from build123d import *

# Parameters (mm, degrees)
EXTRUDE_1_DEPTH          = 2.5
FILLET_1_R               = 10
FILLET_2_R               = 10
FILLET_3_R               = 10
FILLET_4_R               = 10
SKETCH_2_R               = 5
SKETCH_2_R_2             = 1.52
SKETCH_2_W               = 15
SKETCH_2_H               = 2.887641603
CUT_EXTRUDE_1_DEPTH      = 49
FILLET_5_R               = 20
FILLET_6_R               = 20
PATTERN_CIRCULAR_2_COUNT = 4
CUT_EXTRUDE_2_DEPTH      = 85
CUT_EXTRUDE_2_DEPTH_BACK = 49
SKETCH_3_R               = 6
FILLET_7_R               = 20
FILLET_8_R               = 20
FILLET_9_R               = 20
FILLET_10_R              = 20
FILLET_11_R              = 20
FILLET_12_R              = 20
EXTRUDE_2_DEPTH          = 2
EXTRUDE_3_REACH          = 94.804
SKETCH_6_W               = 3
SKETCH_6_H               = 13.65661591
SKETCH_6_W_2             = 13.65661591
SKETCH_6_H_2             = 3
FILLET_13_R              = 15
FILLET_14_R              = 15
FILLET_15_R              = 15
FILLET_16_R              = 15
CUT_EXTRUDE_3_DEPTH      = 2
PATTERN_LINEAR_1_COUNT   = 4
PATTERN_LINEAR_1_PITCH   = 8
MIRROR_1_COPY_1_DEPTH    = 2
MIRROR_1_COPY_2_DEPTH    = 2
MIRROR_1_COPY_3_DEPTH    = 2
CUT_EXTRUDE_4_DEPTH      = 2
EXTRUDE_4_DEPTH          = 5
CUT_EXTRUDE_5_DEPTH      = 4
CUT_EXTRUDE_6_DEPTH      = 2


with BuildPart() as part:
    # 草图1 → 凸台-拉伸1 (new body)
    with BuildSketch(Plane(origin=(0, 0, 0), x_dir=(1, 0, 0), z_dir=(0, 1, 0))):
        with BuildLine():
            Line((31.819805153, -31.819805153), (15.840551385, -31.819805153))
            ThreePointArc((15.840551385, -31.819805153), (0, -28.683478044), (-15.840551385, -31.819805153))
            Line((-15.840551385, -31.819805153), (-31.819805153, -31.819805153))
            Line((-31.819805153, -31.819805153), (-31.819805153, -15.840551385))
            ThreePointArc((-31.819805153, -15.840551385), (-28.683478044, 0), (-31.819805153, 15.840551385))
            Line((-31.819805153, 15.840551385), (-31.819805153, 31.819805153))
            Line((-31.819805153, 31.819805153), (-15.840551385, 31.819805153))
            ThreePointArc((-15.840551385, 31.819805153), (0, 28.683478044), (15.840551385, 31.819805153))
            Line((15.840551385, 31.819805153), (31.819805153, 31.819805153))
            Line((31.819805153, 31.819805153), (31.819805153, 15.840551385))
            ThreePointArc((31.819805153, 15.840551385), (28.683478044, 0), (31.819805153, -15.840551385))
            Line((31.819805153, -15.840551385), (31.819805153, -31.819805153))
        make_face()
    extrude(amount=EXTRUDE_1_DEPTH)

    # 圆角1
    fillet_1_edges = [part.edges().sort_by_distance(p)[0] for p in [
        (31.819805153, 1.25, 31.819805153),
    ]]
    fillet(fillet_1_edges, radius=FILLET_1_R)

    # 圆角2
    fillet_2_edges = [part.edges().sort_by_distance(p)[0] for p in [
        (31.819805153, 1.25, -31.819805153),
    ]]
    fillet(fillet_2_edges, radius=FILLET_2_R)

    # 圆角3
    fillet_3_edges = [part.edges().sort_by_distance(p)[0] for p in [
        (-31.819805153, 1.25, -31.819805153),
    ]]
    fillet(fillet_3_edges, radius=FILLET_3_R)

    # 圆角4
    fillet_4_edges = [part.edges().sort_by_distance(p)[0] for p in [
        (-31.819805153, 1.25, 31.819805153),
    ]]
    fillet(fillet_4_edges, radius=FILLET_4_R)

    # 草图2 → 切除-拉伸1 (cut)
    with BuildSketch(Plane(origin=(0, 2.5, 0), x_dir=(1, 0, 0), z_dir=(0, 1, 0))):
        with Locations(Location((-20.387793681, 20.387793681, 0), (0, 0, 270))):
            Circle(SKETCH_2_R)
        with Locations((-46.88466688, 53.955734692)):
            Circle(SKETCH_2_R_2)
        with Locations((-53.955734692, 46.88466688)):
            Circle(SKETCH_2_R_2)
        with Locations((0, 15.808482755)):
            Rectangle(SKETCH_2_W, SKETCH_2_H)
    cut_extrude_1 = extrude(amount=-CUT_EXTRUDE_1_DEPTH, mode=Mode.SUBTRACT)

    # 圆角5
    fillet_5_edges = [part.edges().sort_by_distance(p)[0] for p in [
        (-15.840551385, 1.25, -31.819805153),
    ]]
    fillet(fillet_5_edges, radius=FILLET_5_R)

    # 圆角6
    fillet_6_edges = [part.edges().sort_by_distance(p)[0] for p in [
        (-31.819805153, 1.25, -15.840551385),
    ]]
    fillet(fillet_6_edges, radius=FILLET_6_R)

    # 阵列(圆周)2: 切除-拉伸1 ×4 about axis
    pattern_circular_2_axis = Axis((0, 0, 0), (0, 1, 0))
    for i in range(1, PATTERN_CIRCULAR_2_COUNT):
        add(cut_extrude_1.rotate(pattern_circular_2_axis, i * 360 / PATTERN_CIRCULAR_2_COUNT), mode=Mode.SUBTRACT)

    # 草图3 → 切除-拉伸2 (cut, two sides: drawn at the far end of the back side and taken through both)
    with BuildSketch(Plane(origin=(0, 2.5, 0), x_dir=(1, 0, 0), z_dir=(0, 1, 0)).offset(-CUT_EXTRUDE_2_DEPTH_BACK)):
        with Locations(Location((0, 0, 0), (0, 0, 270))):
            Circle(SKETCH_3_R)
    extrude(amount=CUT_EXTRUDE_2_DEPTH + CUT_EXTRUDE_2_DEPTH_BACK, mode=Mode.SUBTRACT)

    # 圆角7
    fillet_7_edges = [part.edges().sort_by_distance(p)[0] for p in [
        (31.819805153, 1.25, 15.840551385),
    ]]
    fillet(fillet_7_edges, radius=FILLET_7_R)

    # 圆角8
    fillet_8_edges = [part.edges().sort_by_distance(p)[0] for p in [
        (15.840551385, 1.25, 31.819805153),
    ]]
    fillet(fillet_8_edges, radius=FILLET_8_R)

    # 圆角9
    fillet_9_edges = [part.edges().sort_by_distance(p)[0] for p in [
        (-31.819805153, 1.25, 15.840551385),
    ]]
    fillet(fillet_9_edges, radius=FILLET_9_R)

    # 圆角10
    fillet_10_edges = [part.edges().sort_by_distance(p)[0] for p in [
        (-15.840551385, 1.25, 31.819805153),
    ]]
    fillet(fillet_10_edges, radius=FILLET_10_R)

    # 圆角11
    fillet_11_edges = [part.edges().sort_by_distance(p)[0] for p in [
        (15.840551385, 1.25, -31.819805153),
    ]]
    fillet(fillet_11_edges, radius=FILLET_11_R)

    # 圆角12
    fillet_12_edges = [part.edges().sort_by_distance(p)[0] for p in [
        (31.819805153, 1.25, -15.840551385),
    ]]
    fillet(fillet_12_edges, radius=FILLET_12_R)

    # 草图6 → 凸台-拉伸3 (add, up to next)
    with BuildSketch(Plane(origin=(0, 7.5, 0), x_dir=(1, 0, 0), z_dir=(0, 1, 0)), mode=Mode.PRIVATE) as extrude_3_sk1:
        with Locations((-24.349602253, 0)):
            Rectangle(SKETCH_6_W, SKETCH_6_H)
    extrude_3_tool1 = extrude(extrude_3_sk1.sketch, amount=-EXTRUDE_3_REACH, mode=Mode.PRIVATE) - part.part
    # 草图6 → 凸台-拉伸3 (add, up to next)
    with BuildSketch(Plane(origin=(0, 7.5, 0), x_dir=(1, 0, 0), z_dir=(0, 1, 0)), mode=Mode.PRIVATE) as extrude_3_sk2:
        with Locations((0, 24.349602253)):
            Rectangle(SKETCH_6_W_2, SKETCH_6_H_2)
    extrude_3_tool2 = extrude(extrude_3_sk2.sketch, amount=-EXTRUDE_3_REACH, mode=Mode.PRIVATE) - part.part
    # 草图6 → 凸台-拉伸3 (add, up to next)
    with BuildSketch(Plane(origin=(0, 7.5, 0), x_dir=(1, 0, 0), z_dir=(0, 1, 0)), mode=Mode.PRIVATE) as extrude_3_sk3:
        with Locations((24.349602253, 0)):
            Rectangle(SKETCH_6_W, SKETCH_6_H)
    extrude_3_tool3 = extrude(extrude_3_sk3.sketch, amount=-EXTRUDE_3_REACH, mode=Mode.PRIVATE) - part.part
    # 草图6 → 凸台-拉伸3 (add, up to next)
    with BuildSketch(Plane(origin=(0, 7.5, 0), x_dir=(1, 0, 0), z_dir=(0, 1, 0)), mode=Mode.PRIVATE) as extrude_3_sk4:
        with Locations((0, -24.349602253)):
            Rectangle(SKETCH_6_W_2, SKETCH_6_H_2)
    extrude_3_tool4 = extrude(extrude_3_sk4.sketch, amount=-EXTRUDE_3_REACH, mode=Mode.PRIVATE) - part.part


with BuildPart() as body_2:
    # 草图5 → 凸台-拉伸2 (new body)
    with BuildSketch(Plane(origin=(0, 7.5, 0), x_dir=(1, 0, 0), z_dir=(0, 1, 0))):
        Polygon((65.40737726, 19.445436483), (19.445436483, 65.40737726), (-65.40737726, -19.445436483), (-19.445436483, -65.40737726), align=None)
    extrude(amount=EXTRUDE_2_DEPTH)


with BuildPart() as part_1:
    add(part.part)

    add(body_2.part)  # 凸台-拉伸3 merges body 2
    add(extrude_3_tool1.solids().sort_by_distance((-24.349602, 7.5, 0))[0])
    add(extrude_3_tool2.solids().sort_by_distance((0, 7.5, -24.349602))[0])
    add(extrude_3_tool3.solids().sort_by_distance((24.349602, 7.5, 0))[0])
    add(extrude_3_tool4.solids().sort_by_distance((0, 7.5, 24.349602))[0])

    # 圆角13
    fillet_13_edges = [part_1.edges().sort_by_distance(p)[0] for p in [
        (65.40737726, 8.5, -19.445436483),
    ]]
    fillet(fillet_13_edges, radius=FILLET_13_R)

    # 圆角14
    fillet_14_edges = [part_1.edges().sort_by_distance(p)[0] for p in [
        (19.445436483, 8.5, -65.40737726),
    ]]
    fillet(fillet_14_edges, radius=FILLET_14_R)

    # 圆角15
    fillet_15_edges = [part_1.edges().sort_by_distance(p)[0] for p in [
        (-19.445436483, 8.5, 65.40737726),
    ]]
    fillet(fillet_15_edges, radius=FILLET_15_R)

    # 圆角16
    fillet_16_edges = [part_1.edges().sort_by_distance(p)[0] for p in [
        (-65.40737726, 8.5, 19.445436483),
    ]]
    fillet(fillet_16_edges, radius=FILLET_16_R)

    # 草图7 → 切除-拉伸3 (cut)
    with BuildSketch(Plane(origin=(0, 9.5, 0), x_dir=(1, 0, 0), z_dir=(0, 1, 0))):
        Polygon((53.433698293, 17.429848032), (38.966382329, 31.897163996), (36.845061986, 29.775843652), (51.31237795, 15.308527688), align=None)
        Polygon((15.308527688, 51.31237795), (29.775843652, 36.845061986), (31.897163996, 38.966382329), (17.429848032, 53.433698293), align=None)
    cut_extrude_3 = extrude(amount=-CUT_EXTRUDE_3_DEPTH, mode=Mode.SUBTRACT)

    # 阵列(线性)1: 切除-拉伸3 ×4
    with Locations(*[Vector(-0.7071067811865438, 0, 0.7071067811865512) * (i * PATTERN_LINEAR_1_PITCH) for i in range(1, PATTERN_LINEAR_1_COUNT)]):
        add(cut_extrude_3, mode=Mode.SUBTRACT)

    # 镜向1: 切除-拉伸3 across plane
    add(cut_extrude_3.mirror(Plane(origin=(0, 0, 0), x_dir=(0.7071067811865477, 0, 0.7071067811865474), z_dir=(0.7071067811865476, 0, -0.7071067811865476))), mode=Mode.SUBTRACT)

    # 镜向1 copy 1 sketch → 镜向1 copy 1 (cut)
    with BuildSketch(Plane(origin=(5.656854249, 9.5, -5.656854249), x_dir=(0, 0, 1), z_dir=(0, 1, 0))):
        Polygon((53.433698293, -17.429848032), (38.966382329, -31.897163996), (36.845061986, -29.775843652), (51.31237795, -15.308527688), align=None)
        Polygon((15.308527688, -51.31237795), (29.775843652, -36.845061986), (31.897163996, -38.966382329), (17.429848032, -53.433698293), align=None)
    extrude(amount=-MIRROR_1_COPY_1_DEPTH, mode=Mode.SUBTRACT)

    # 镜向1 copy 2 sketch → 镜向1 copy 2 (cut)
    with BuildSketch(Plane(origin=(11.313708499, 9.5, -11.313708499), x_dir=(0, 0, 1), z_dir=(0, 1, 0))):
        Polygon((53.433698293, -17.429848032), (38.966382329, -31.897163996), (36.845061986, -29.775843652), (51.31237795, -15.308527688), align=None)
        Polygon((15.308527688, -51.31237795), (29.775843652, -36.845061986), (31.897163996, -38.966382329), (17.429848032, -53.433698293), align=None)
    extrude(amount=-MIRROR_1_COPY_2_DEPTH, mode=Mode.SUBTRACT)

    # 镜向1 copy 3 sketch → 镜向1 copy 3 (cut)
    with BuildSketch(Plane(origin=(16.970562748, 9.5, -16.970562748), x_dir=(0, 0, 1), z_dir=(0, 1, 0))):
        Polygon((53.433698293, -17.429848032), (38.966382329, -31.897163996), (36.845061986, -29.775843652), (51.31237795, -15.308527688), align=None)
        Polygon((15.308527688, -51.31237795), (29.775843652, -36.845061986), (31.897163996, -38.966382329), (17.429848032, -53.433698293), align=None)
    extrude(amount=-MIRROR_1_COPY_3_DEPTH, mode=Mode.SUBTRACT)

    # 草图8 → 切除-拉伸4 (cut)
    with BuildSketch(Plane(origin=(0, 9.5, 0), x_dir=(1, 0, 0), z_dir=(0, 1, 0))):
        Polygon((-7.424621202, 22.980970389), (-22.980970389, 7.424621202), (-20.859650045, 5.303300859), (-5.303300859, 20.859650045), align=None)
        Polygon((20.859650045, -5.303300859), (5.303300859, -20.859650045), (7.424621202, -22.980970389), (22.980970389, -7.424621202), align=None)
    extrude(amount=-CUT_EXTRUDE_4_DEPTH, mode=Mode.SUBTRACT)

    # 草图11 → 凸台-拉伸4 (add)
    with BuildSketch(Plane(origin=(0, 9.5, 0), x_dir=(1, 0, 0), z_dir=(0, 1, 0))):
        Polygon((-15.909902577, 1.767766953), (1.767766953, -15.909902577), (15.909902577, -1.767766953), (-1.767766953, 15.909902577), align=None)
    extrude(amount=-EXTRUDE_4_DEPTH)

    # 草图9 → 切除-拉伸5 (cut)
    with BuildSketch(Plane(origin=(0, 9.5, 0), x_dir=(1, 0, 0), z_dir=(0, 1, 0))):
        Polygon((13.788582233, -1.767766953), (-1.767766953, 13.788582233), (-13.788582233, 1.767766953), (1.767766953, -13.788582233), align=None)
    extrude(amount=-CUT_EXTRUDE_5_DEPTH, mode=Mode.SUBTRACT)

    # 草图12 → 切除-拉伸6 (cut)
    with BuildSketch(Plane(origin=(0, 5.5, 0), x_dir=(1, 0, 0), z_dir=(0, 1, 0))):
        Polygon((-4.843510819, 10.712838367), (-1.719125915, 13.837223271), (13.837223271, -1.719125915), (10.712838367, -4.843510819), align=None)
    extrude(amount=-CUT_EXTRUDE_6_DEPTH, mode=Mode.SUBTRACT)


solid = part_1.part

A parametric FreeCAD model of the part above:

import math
import FreeCAD as App
import Part
import Sketcher

V = App.Vector
Q = App.Units.Quantity


def edges_at(feature, points):
    """Names of the edges that pass closest to the given points."""
    edges = feature.Shape.Edges
    near = lambda p: min(range(len(edges)), key=lambda i: edges[i].distToShape(Part.Vertex(*p))[0])
    return sorted({f"Edge{near(p) + 1}" for p in points})

doc = App.newDocument("Part")
body = doc.addObject("PartDesign::Body", "Body")

# Sketch on XZ plane
sketch1 = body.newObject("Sketcher::SketchObject", "Sketch")
sketch1.AttachmentSupport = (doc.getObject("XZ_Plane"), [""])
sketch1.MapMode = "FlatFace"
sketch1.addGeometry([
    Part.LineSegment(V(16, 32, 0), V(32, 32, 0)),  # 0
    Part.LineSegment(V(32, 32, 0), V(32, 16, 0)),  # 1
    Part.ArcOfCircle(Part.Circle(V(70, 0, 0), V(0, 0, 1), 42), math.radians(158), math.radians(202)),  # 2
    Part.LineSegment(V(32, -16, 0), V(32, -32, 0)),  # 3
    Part.LineSegment(V(32, -32, 0), V(16, -32, 0)),  # 4
    Part.ArcOfCircle(Part.Circle(V(0, -70, 0), V(0, 0, 1), 42), math.radians(68), math.radians(112)),  # 5
    Part.LineSegment(V(-16, -32, 0), V(-32, -32, 0)),  # 6
    Part.LineSegment(V(-32, -32, 0), V(-32, -16, 0)),  # 7
    Part.ArcOfCircle(Part.Circle(V(-70, 0, 0), V(0, 0, 1), 42), math.radians(-22), math.radians(22)),  # 8
    Part.LineSegment(V(-32, 16, 0), V(-32, 32, 0)),  # 9
    Part.LineSegment(V(-32, 32, 0), V(-16, 32, 0)),  # 10
    Part.ArcOfCircle(Part.Circle(V(0, 70, 0), V(0, 0, 1), 42), math.radians(-112), math.radians(-68)),  # 11
], False)
sketch1.addConstraint([
    Sketcher.Constraint("Coincident", 0, 2, 1, 1),
    Sketcher.Constraint("Coincident", 1, 2, 2, 1),
    Sketcher.Constraint("Coincident", 2, 2, 3, 1),
    Sketcher.Constraint("Coincident", 3, 2, 4, 1),
    Sketcher.Constraint("Coincident", 4, 2, 5, 1),
    Sketcher.Constraint("Coincident", 5, 2, 6, 1),
    Sketcher.Constraint("Coincident", 6, 2, 7, 1),
    Sketcher.Constraint("Coincident", 7, 2, 8, 1),
    Sketcher.Constraint("Coincident", 8, 2, 9, 1),
    Sketcher.Constraint("Coincident", 9, 2, 10, 1),
    Sketcher.Constraint("Coincident", 10, 2, 11, 1),
    Sketcher.Constraint("Coincident", 11, 2, 0, 1),
    Sketcher.Constraint("Horizontal", 0),
    Sketcher.Constraint("Vertical", 1),
    Sketcher.Constraint("Vertical", 3),
    Sketcher.Constraint("Horizontal", 4),
    Sketcher.Constraint("Horizontal", 6),
    Sketcher.Constraint("Vertical", 7),
    Sketcher.Constraint("Vertical", 9),
    Sketcher.Constraint("Horizontal", 10),
    Sketcher.Constraint("Equal", 2, 5),
    Sketcher.Constraint("Equal", 5, 8),
    Sketcher.Constraint("Equal", 8, 11),
    Sketcher.Constraint("Symmetric", 2, 3, 8, 3, -1, 1),
    Sketcher.Constraint("Symmetric", 5, 3, 11, 3, -1, 1),
    Sketcher.Constraint("Symmetric", 0, 2, 6, 2, -1, 1),
    Sketcher.Constraint("Symmetric", 3, 2, 9, 2, -1, 1),
    Sketcher.Constraint("Symmetric", 4, 2, 5, 2, -2),
    Sketcher.Constraint("Symmetric", 2, 2, 7, 2, -2),
    Sketcher.Constraint("Equal", 10, 1),
    Sketcher.Constraint("Radius", 2, 41.570858),
    Sketcher.Constraint("DistanceX", 0, 1, 0, 2, 15.979254),
    Sketcher.Constraint("DistanceY", -1, 1, 1, 2, 15.840551),
    Sketcher.Constraint("DistanceX", -1, 1, 4, 2, 15.840551),
])
pad1 = body.newObject("PartDesign::Pad", "Pad")
pad1.Profile = sketch1
pad1.Length = 2.5
pad1.Reversed = True
doc.recompute()

fillet = body.newObject("PartDesign::Fillet", "Fillet")
fillet.Base = (pad1, edges_at(pad1, [(31.82, 1.25, 31.82)]))
fillet.Radius = 10
doc.recompute()

fillet2 = body.newObject("PartDesign::Fillet", "Fillet001")
fillet2.Base = (fillet, edges_at(fillet, [(31.82, 1.25, -31.82)]))
fillet2.Radius = 10
doc.recompute()

fillet3 = body.newObject("PartDesign::Fillet", "Fillet002")
fillet3.Base = (fillet2, edges_at(fillet2, [(-31.82, 1.25, -31.82)]))
fillet3.Radius = 10
doc.recompute()

fillet4 = body.newObject("PartDesign::Fillet", "Fillet003")
fillet4.Base = (fillet3, edges_at(fillet3, [(-31.82, 1.25, 31.82)]))
fillet4.Radius = 10

# Sketch on XZ plane
sketch2 = body.newObject("Sketcher::SketchObject", "Sketch001")
sketch2.AttachmentSupport = (doc.getObject("XZ_Plane"), [""])
sketch2.MapMode = "FlatFace"
sketch2.AttachmentOffset = App.Placement(V(0, 0, -2.5), App.Rotation())
sketch2.addGeometry([
    Part.Circle(V(-20.4, -20.4, 0), V(0, 0, 1), 5),  # 0
    Part.Circle(V(-46.9, -54, 0), V(0, 0, 1), 1.5),  # 1
    Part.Circle(V(-54, -46.9, 0), V(0, 0, 1), 1.5),  # 2
    Part.LineSegment(V(-7.5, -17.3, 0), V(-7.5, -14.4, 0)),  # 3
    Part.LineSegment(V(-7.5, -14.4, 0), V(7.5, -14.4, 0)),  # 4
    Part.LineSegment(V(7.5, -14.4, 0), V(7.5, -17.3, 0)),  # 5
    Part.LineSegment(V(7.5, -17.3, 0), V(-7.5, -17.3, 0)),  # 6
], False)
sketch2.addConstraint([
    Sketcher.Constraint("Coincident", 3, 2, 4, 1),
    Sketcher.Constraint("Coincident", 4, 2, 5, 1),
    Sketcher.Constraint("Coincident", 5, 2, 6, 1),
    Sketcher.Constraint("Coincident", 6, 2, 3, 1),
    Sketcher.Constraint("Vertical", 3),
    Sketcher.Constraint("Horizontal", 4),
    Sketcher.Constraint("Vertical", 5),
    Sketcher.Constraint("Horizontal", 6),
    Sketcher.Constraint("Equal", 1, 2),
    Sketcher.Constraint("Diameter", 0, 10.0),
    Sketcher.Constraint("Diameter", 1, 3.04),
    Sketcher.Constraint("DistanceX", 4, 1, 4, 2, 15.0),
    Sketcher.Constraint("DistanceX", 3, 2, -1, 1, 7.5),
    Sketcher.Constraint("DistanceY", 3, 1, 3, 2, 2.887642),
    Sketcher.Constraint("DistanceY", 3, 2, -1, 1, 14.364662),
    Sketcher.Constraint("DistanceY", 1, 3, 0, 3, 33.567941),
    Sketcher.Constraint("DistanceX", 2, 3, 0, 3, 33.567941),
    Sketcher.Constraint("DistanceY", 0, 3, 3, 2, 6.023132),
    Sketcher.Constraint("DistanceX", 0, 3, -1, 1, 20.387794),
    Sketcher.Constraint("DistanceX", 1, 3, -1, 1, 46.884667),
    Sketcher.Constraint("DistanceY", 2, 3, -1, 1, 46.884667),
])
pocket1 = body.newObject("PartDesign::Pocket", "Pocket")
pocket1.Profile = sketch2
pocket1.Length = 49
pocket1.Reversed = True
doc.recompute()

fillet5 = body.newObject("PartDesign::Fillet", "Fillet004")
fillet5.Base = (pocket1, edges_at(pocket1, [(-15.841, 1.25, -31.82)]))
fillet5.Radius = 20
doc.recompute()

fillet6 = body.newObject("PartDesign::Fillet", "Fillet005")
fillet6.Base = (fillet5, edges_at(fillet5, [(-31.82, 1.25, -15.841)]))
fillet6.Radius = 20
doc.recompute()

polarpattern = body.newObject("PartDesign::PolarPattern", "PolarPattern")
polarpattern.Originals = [pocket1]
polarpattern.Axis = (doc.getObject("Y_Axis"), [""])
polarpattern.Angle = 360
polarpattern.Occurrences = 4
body.Tip = polarpattern

# Sketch on XZ plane
sketch3 = body.newObject("Sketcher::SketchObject", "Sketch002")
sketch3.AttachmentSupport = (doc.getObject("XZ_Plane"), [""])
sketch3.MapMode = "FlatFace"
sketch3.AttachmentOffset = App.Placement(V(0, 0, -2.5), App.Rotation())
sketch3.addGeometry(Part.Circle(V(0, 0, 0), V(0, 0, 1), 6), False)
sketch3.addConstraint([
    Sketcher.Constraint("Coincident", 0, 3, -1, 1),
    Sketcher.Constraint("Diameter", 0, 12.0),
])
pocket2 = body.newObject("PartDesign::Pocket", "Pocket001")
pocket2.Profile = sketch3
pocket2.Type = "ThroughAll"
pocket2.Midplane = True
doc.recompute()

fillet7 = body.newObject("PartDesign::Fillet", "Fillet006")
fillet7.Base = (pocket2, edges_at(pocket2, [(31.82, 1.25, 15.841)]))
fillet7.Radius = 20
doc.recompute()

fillet8 = body.newObject("PartDesign::Fillet", "Fillet007")
fillet8.Base = (fillet7, edges_at(fillet7, [(15.841, 1.25, 31.82)]))
fillet8.Radius = 20
doc.recompute()

fillet9 = body.newObject("PartDesign::Fillet", "Fillet008")
fillet9.Base = (fillet8, edges_at(fillet8, [(-31.82, 1.25, 15.841)]))
fillet9.Radius = 20
doc.recompute()

fillet10 = body.newObject("PartDesign::Fillet", "Fillet009")
fillet10.Base = (fillet9, edges_at(fillet9, [(-15.841, 1.25, 31.82)]))
fillet10.Radius = 20
doc.recompute()

fillet11 = body.newObject("PartDesign::Fillet", "Fillet010")
fillet11.Base = (fillet10, edges_at(fillet10, [(15.841, 1.25, -31.82)]))
fillet11.Radius = 20
doc.recompute()

fillet12 = body.newObject("PartDesign::Fillet", "Fillet011")
fillet12.Base = (fillet11, edges_at(fillet11, [(31.82, 1.25, -15.841)]))
fillet12.Radius = 20
body2 = doc.addObject("PartDesign::Body", "Body001")

# Sketch on XZ plane
sketch4 = body2.newObject("Sketcher::SketchObject", "Sketch003")
sketch4.AttachmentSupport = (doc.getObject("XZ_Plane001"), [""])
sketch4.MapMode = "FlatFace"
sketch4.AttachmentOffset = App.Placement(V(0, 0, -7.5), App.Rotation())
sketch4.addGeometry([
    Part.LineSegment(V(65, -19, 0), V(19, -65, 0)),
    Part.LineSegment(V(19, -65, 0), V(-65, 19, 0)),
    Part.LineSegment(V(-65, 19, 0), V(-19, 65, 0)),
    Part.LineSegment(V(-19, 65, 0), V(65, -19, 0)),
], False)
sketch4.addConstraint([
    Sketcher.Constraint("Coincident", 0, 2, 1, 1),
    Sketcher.Constraint("Coincident", 1, 2, 2, 1),
    Sketcher.Constraint("Coincident", 2, 2, 3, 1),
    Sketcher.Constraint("Coincident", 3, 2, 0, 1),
    Sketcher.Constraint("Symmetric", 0, 2, 2, 2, -1, 1),
    Sketcher.Constraint("Symmetric", 1, 2, 3, 2, -1, 1),
    Sketcher.Constraint("Perpendicular", 0, 1),
    Sketcher.Constraint("Angle", 0, Q("-135 deg")),
    Sketcher.Constraint("Distance", 0, 65.0),
    Sketcher.Constraint("Distance", 1, 120.0),
])
pad2 = body2.newObject("PartDesign::Pad", "Pad001")
pad2.Profile = sketch4
pad2.Length = 2
pad2.Reversed = True
body.AllowCompound = True
doc.recompute()

boolean = body.newObject("PartDesign::Boolean", "Boolean")
boolean.Type = "Fuse"
boolean.addObjects([body2])

# Sketch on XZ plane
sketch5 = body.newObject("Sketcher::SketchObject", "Sketch004")
sketch5.AttachmentSupport = (doc.getObject("XZ_Plane"), [""])
sketch5.MapMode = "FlatFace"
sketch5.AttachmentOffset = App.Placement(V(0, 0, -7.5), App.Rotation())
sketch5.addGeometry([
    Part.LineSegment(V(-25.8, -6.8, 0), V(-25.8, 6.8, 0)),
    Part.LineSegment(V(-25.8, 6.8, 0), V(-22.8, 6.8, 0)),
    Part.LineSegment(V(-22.8, 6.8, 0), V(-22.8, -6.8, 0)),
    Part.LineSegment(V(-22.8, -6.8, 0), V(-25.8, -6.8, 0)),
], False)
sketch5.addConstraint([
    Sketcher.Constraint("Coincident", 0, 2, 1, 1),
    Sketcher.Constraint("Coincident", 1, 2, 2, 1),
    Sketcher.Constraint("Coincident", 2, 2, 3, 1),
    Sketcher.Constraint("Coincident", 3, 2, 0, 1),
    Sketcher.Constraint("Vertical", 0),
    Sketcher.Constraint("Horizontal", 1),
    Sketcher.Constraint("Vertical", 2),
    Sketcher.Constraint("Horizontal", 3),
    Sketcher.Constraint("DistanceX", 1, 1, 1, 2, 3.0),
    Sketcher.Constraint("DistanceY", 0, 1, 0, 2, 13.656616),
    Sketcher.Constraint("DistanceX", 0, 2, -1, 1, 25.849602),
    Sketcher.Constraint("DistanceY", -1, 1, 0, 2, 6.828308),
])
pad3 = body.newObject("PartDesign::Pad", "Pad002")
pad3.Profile = sketch5
pad3.Type = "UpToFirst"

# Sketch on XZ plane
sketch6 = body.newObject("Sketcher::SketchObject", "Sketch005")
sketch6.AttachmentSupport = (doc.getObject("XZ_Plane"), [""])
sketch6.MapMode = "FlatFace"
sketch6.AttachmentOffset = App.Placement(V(0, 0, -7.5), App.Rotation())
sketch6.addGeometry([
    Part.LineSegment(V(-6.8, -25.8, 0), V(-6.8, -22.8, 0)),
    Part.LineSegment(V(-6.8, -22.8, 0), V(6.8, -22.8, 0)),
    Part.LineSegment(V(6.8, -22.8, 0), V(6.8, -25.8, 0)),
    Part.LineSegment(V(6.8, -25.8, 0), V(-6.8, -25.8, 0)),
], False)
sketch6.addConstraint([
    Sketcher.Constraint("Coincident", 0, 2, 1, 1),
    Sketcher.Constraint("Coincident", 1, 2, 2, 1),
    Sketcher.Constraint("Coincident", 2, 2, 3, 1),
    Sketcher.Constraint("Coincident", 3, 2, 0, 1),
    Sketcher.Constraint("Vertical", 0),
    Sketcher.Constraint("Horizontal", 1),
    Sketcher.Constraint("Vertical", 2),
    Sketcher.Constraint("Horizontal", 3),
    Sketcher.Constraint("DistanceY", 0, 1, 0, 2, 3.0),
    Sketcher.Constraint("DistanceX", 1, 1, 1, 2, 13.656616),
    Sketcher.Constraint("DistanceX", 0, 2, -1, 1, 6.828308),
    Sketcher.Constraint("DistanceY", 0, 2, -1, 1, 22.849602),
])
pad4 = body.newObject("PartDesign::Pad", "Pad003")
pad4.Profile = sketch6
pad4.Type = "UpToFirst"

# Sketch on XZ plane
sketch7 = body.newObject("Sketcher::SketchObject", "Sketch006")
sketch7.AttachmentSupport = (doc.getObject("XZ_Plane"), [""])
sketch7.MapMode = "FlatFace"
sketch7.AttachmentOffset = App.Placement(V(0, 0, -7.5), App.Rotation())
sketch7.addGeometry([
    Part.LineSegment(V(22.8, -6.8, 0), V(22.8, 6.8, 0)),
    Part.LineSegment(V(22.8, 6.8, 0), V(25.8, 6.8, 0)),
    Part.LineSegment(V(25.8, 6.8, 0), V(25.8, -6.8, 0)),
    Part.LineSegment(V(25.8, -6.8, 0), V(22.8, -6.8, 0)),
], False)
sketch7.addConstraint([
    Sketcher.Constraint("Coincident", 0, 2, 1, 1),
    Sketcher.Constraint("Coincident", 1, 2, 2, 1),
    Sketcher.Constraint("Coincident", 2, 2, 3, 1),
    Sketcher.Constraint("Coincident", 3, 2, 0, 1),
    Sketcher.Constraint("Vertical", 0),
    Sketcher.Constraint("Horizontal", 1),
    Sketcher.Constraint("Vertical", 2),
    Sketcher.Constraint("Horizontal", 3),
    Sketcher.Constraint("DistanceX", 1, 1, 1, 2, 3.0),
    Sketcher.Constraint("DistanceY", 0, 1, 0, 2, 13.656616),
    Sketcher.Constraint("DistanceX", -1, 1, 0, 2, 22.849602),
    Sketcher.Constraint("DistanceY", -1, 1, 0, 2, 6.828308),
])
pad5 = body.newObject("PartDesign::Pad", "Pad004")
pad5.Profile = sketch7
pad5.Type = "UpToFirst"

# Sketch on XZ plane
sketch8 = body.newObject("Sketcher::SketchObject", "Sketch007")
sketch8.AttachmentSupport = (doc.getObject("XZ_Plane"), [""])
sketch8.MapMode = "FlatFace"
sketch8.AttachmentOffset = App.Placement(V(0, 0, -7.5), App.Rotation())
sketch8.addGeometry([
    Part.LineSegment(V(-6.8, 22.8, 0), V(-6.8, 25.8, 0)),
    Part.LineSegment(V(-6.8, 25.8, 0), V(6.8, 25.8, 0)),
    Part.LineSegment(V(6.8, 25.8, 0), V(6.8, 22.8, 0)),
    Part.LineSegment(V(6.8, 22.8, 0), V(-6.8, 22.8, 0)),
], False)
sketch8.addConstraint([
    Sketcher.Constraint("Coincident", 0, 2, 1, 1),
    Sketcher.Constraint("Coincident", 1, 2, 2, 1),
    Sketcher.Constraint("Coincident", 2, 2, 3, 1),
    Sketcher.Constraint("Coincident", 3, 2, 0, 1),
    Sketcher.Constraint("Vertical", 0),
    Sketcher.Constraint("Horizontal", 1),
    Sketcher.Constraint("Vertical", 2),
    Sketcher.Constraint("Horizontal", 3),
    Sketcher.Constraint("DistanceY", 0, 1, 0, 2, 3.0),
    Sketcher.Constraint("DistanceX", 1, 1, 1, 2, 13.656616),
    Sketcher.Constraint("DistanceX", 0, 2, -1, 1, 6.828308),
    Sketcher.Constraint("DistanceY", -1, 1, 0, 2, 25.849602),
])
pad6 = body.newObject("PartDesign::Pad", "Pad005")
pad6.Profile = sketch8
pad6.Type = "UpToFirst"
doc.recompute()

fillet13 = body.newObject("PartDesign::Fillet", "Fillet012")
fillet13.Base = (pad6, edges_at(pad6, [(65.407, 8.5, -19.445)]))
fillet13.Radius = 15
doc.recompute()

fillet14 = body.newObject("PartDesign::Fillet", "Fillet013")
fillet14.Base = (fillet13, edges_at(fillet13, [(19.445, 8.5, -65.407)]))
fillet14.Radius = 15
doc.recompute()

fillet15 = body.newObject("PartDesign::Fillet", "Fillet014")
fillet15.Base = (fillet14, edges_at(fillet14, [(-19.445, 8.5, 65.407)]))
fillet15.Radius = 15
doc.recompute()

fillet16 = body.newObject("PartDesign::Fillet", "Fillet015")
fillet16.Base = (fillet15, edges_at(fillet15, [(-65.407, 8.5, 19.445)]))
fillet16.Radius = 15

# Sketch on XZ plane
sketch9 = body.newObject("Sketcher::SketchObject", "Sketch008")
sketch9.AttachmentSupport = (doc.getObject("XZ_Plane"), [""])
sketch9.MapMode = "FlatFace"
sketch9.AttachmentOffset = App.Placement(V(0, 0, -9.5), App.Rotation())
sketch9.addGeometry([
    Part.LineSegment(V(53.4, -17.4, 0), V(39, -31.9, 0)),  # 0
    Part.LineSegment(V(39, -31.9, 0), V(36.8, -29.8, 0)),  # 1
    Part.LineSegment(V(36.8, -29.8, 0), V(51.3, -15.3, 0)),  # 2
    Part.LineSegment(V(51.3, -15.3, 0), V(53.4, -17.4, 0)),  # 3
    Part.LineSegment(V(15.3, -51.3, 0), V(29.8, -36.8, 0)),  # 4
    Part.LineSegment(V(29.8, -36.8, 0), V(31.9, -39, 0)),  # 5
    Part.LineSegment(V(31.9, -39, 0), V(17.4, -53.4, 0)),  # 6
    Part.LineSegment(V(17.4, -53.4, 0), V(15.3, -51.3, 0)),  # 7
], False)
sketch9.addConstraint([
    Sketcher.Constraint("Coincident", 0, 2, 1, 1),
    Sketcher.Constraint("Coincident", 1, 2, 2, 1),
    Sketcher.Constraint("Coincident", 2, 2, 3, 1),
    Sketcher.Constraint("Coincident", 3, 2, 0, 1),
    Sketcher.Constraint("Coincident", 4, 2, 5, 1),
    Sketcher.Constraint("Coincident", 5, 2, 6, 1),
    Sketcher.Constraint("Coincident", 6, 2, 7, 1),
    Sketcher.Constraint("Coincident", 7, 2, 4, 1),
    Sketcher.Constraint("Perpendicular", 0, 1),
    Sketcher.Constraint("Perpendicular", 1, 2),
    Sketcher.Constraint("Perpendicular", 2, 3),
    Sketcher.Constraint("Perpendicular", 3, 4),
    Sketcher.Constraint("Perpendicular", 4, 5),
    Sketcher.Constraint("Perpendicular", 5, 6),
    Sketcher.Constraint("Perpendicular", 6, 7),
    Sketcher.Constraint("Equal", 2, 4),
    Sketcher.Constraint("Equal", 3, 5),
    Sketcher.Constraint("Angle", 0, Q("-135 deg")),
    Sketcher.Constraint("Distance", 1, 3.0),
    Sketcher.Constraint("DistanceX", -1, 1, 3, 2, 53.433698),
    Sketcher.Constraint("DistanceY", 6, 2, -1, 1, 53.433698),
    Sketcher.Constraint("DistanceX", -1, 1, 1, 2, 36.845062),
    Sketcher.Constraint("DistanceY", 3, 2, -1, 1, 17.429848),
    Sketcher.Constraint("DistanceX", -1, 1, 6, 2, 17.429848),
])
pocket3 = body.newObject("PartDesign::Pocket", "Pocket002")
pocket3.Profile = sketch9
pocket3.Length = 2
pocket3.Reversed = True
doc.recompute()

datumline = body.newObject("PartDesign::Line", "DatumLine")
datumline.Placement = App.Placement(V(0, 0, 0), App.Rotation(V(0, 0, 1), V(-0.707106781, 0, 0.707106781)))
linearpattern = body.newObject("PartDesign::LinearPattern", "LinearPattern")
linearpattern.Originals = [pocket3]
linearpattern.Direction = (datumline, [""])
linearpattern.Mode = "offset"
linearpattern.Offset = 8
linearpattern.Occurrences = 4
body.Tip = linearpattern
doc.recompute()

datumplane = body.newObject("PartDesign::Plane", "DatumPlane")
datumplane.Placement = App.Placement(V(0, 0, 0), App.Rotation(V(0.707106781, 0, 0.707106781), V(0, -1, 0), V(0.707106781, 0, -0.707106781), "ZXY"))
mirrored = body.newObject("PartDesign::Mirrored", "Mirrored")
mirrored.Originals = [pocket3]
mirrored.MirrorPlane = (datumplane, [""])
body.Tip = mirrored

# Sketch on XZ plane
sketch10 = body.newObject("Sketcher::SketchObject", "Sketch009")
sketch10.AttachmentSupport = (doc.getObject("XZ_Plane"), [""])
sketch10.MapMode = "FlatFace"
sketch10.AttachmentOffset = App.Placement(V(0, 0, -9.5), App.Rotation())
sketch10.addGeometry([
    Part.LineSegment(V(-26.2, 33.3, 0), V(-11.8, 47.8, 0)),  # 0
    Part.LineSegment(V(-11.8, 47.8, 0), V(-9.7, 45.7, 0)),  # 1
    Part.LineSegment(V(-9.7, 45.7, 0), V(-24.1, 31.2, 0)),  # 2
    Part.LineSegment(V(-24.1, 31.2, 0), V(-26.2, 33.3, 0)),  # 3
    Part.LineSegment(V(-31.2, 24.1, 0), V(-45.7, 9.7, 0)),  # 4
    Part.LineSegment(V(-45.7, 9.7, 0), V(-47.8, 11.8, 0)),  # 5
    Part.LineSegment(V(-47.8, 11.8, 0), V(-33.3, 26.2, 0)),  # 6
    Part.LineSegment(V(-33.3, 26.2, 0), V(-31.2, 24.1, 0)),  # 7
], False)
sketch10.addConstraint([
    Sketcher.Constraint("Coincident", 0, 2, 1, 1),
    Sketcher.Constraint("Coincident", 1, 2, 2, 1),
    Sketcher.Constraint("Coincident", 2, 2, 3, 1),
    Sketcher.Constraint("Coincident", 3, 2, 0, 1),
    Sketcher.Constraint("Coincident", 4, 2, 5, 1),
    Sketcher.Constraint("Coincident", 5, 2, 6, 1),
    Sketcher.Constraint("Coincident", 6, 2, 7, 1),
    Sketcher.Constraint("Coincident", 7, 2, 4, 1),
    Sketcher.Constraint("Perpendicular", 0, 1),
    Sketcher.Constraint("Perpendicular", 1, 2),
    Sketcher.Constraint("Perpendicular", 2, 3),
    Sketcher.Constraint("Perpendicular", 3, 4),
    Sketcher.Constraint("Perpendicular", 4, 5),
    Sketcher.Constraint("Perpendicular", 5, 6),
    Sketcher.Constraint("Perpendicular", 6, 7),
    Sketcher.Constraint("Equal", 2, 4),
    Sketcher.Constraint("Equal", 3, 5),
    Sketcher.Constraint("Angle", 0, Q("45 deg")),
    Sketcher.Constraint("Distance", 1, 3.0),
    Sketcher.Constraint("DistanceX", 2, 2, -1, 1, 24.118989),
    Sketcher.Constraint("DistanceY", -1, 1, 3, 2, 33.309528),
    Sketcher.Constraint("DistanceX", 6, 2, -1, 1, 33.309528),
    Sketcher.Constraint("DistanceY", -1, 1, 6, 2, 26.24031),
    Sketcher.Constraint("DistanceX", 4, 2, 1, 2, 36.00385),
])
pocket4 = body.newObject("PartDesign::Pocket", "Pocket003")
pocket4.Profile = sketch10
pocket4.Length = 2
pocket4.Reversed = True

# Sketch on XZ plane
sketch11 = body.newObject("Sketcher::SketchObject", "Sketch010")
sketch11.AttachmentSupport = (doc.getObject("XZ_Plane"), [""])
sketch11.MapMode = "FlatFace"
sketch11.AttachmentOffset = App.Placement(V(0, 0, -9.5), App.Rotation())
sketch11.addGeometry([
    Part.LineSegment(V(-20.6, 27.7, 0), V(-6.1, 42.1, 0)),  # 0
    Part.LineSegment(V(-6.1, 42.1, 0), V(-4, 40, 0)),  # 1
    Part.LineSegment(V(-4, 40, 0), V(-18.5, 25.5, 0)),  # 2
    Part.LineSegment(V(-18.5, 25.5, 0), V(-20.6, 27.7, 0)),  # 3
    Part.LineSegment(V(-25.5, 18.5, 0), V(-40, 4, 0)),  # 4
    Part.LineSegment(V(-40, 4, 0), V(-42.1, 6.1, 0)),  # 5
    Part.LineSegment(V(-42.1, 6.1, 0), V(-27.7, 20.6, 0)),  # 6
    Part.LineSegment(V(-27.7, 20.6, 0), V(-25.5, 18.5, 0)),  # 7
], False)
sketch11.addConstraint([
    Sketcher.Constraint("Coincident", 0, 2, 1, 1),
    Sketcher.Constraint("Coincident", 1, 2, 2, 1),
    Sketcher.Constraint("Coincident", 2, 2, 3, 1),
    Sketcher.Constraint("Coincident", 3, 2, 0, 1),
    Sketcher.Constraint("Coincident", 4, 2, 5, 1),
    Sketcher.Constraint("Coincident", 5, 2, 6, 1),
    Sketcher.Constraint("Coincident", 6, 2, 7, 1),
    Sketcher.Constraint("Coincident", 7, 2, 4, 1),
    Sketcher.Constraint("Perpendicular", 0, 1),
    Sketcher.Constraint("Perpendicular", 1, 2),
    Sketcher.Constraint("Perpendicular", 2, 3),
    Sketcher.Constraint("Perpendicular", 3, 4),
    Sketcher.Constraint("Perpendicular", 4, 5),
    Sketcher.Constraint("Perpendicular", 5, 6),
    Sketcher.Constraint("Perpendicular", 6, 7),
    Sketcher.Constraint("Equal", 2, 4),
    Sketcher.Constraint("Equal", 3, 5),
    Sketcher.Constraint("Angle", 0, Q("45 deg")),
    Sketcher.Constraint("Distance", 1, 3.0),
    Sketcher.Constraint("DistanceX", 0, 2, -1, 1, 6.11614),
    Sketcher.Constraint("DistanceY", -1, 1, 0, 2, 42.11999),
    Sketcher.Constraint("DistanceX", 4, 2, -1, 1, 39.998669),
    Sketcher.Constraint("DistanceY", -1, 1, 4, 2, 3.994819),
    Sketcher.Constraint("DistanceX", 6, 2, 3, 2, 7.069218),
])
pocket5 = body.newObject("PartDesign::Pocket", "Pocket004")
pocket5.Profile = sketch11
pocket5.Length = 2
pocket5.Reversed = True

# Sketch on XZ plane
sketch12 = body.newObject("Sketcher::SketchObject", "Sketch011")
sketch12.AttachmentSupport = (doc.getObject("XZ_Plane"), [""])
sketch12.MapMode = "FlatFace"
sketch12.AttachmentOffset = App.Placement(V(0, 0, -9.5), App.Rotation())
sketch12.addGeometry([
    Part.LineSegment(V(-14.9, 22, 0), V(-0.5, 36.5, 0)),  # 0
    Part.LineSegment(V(-0.5, 36.5, 0), V(1.7, 34.3, 0)),  # 1
    Part.LineSegment(V(1.7, 34.3, 0), V(-12.8, 19.9, 0)),  # 2
    Part.LineSegment(V(-12.8, 19.9, 0), V(-14.9, 22, 0)),  # 3
    Part.LineSegment(V(-19.9, 12.8, 0), V(-34.3, -1.7, 0)),  # 4
    Part.LineSegment(V(-34.3, -1.7, 0), V(-36.5, 0.5, 0)),  # 5
    Part.LineSegment(V(-36.5, 0.5, 0), V(-22, 14.9, 0)),  # 6
    Part.LineSegment(V(-22, 14.9, 0), V(-19.9, 12.8, 0)),  # 7
], False)
sketch12.addConstraint([
    Sketcher.Constraint("Coincident", 0, 2, 1, 1),
    Sketcher.Constraint("Coincident", 1, 2, 2, 1),
    Sketcher.Constraint("Coincident", 2, 2, 3, 1),
    Sketcher.Constraint("Coincident", 3, 2, 0, 1),
    Sketcher.Constraint("Coincident", 4, 2, 5, 1),
    Sketcher.Constraint("Coincident", 5, 2, 6, 1),
    Sketcher.Constraint("Coincident", 6, 2, 7, 1),
    Sketcher.Constraint("Coincident", 7, 2, 4, 1),
    Sketcher.Constraint("Perpendicular", 0, 1),
    Sketcher.Constraint("Perpendicular", 1, 2),
    Sketcher.Constraint("Perpendicular", 2, 3),
    Sketcher.Constraint("Perpendicular", 3, 4),
    Sketcher.Constraint("Perpendicular", 4, 5),
    Sketcher.Constraint("Perpendicular", 5, 6),
    Sketcher.Constraint("Perpendicular", 6, 7),
    Sketcher.Constraint("Equal", 2, 4),
    Sketcher.Constraint("Equal", 3, 5),
    Sketcher.Constraint("Angle", 0, Q("45 deg")),
    Sketcher.Constraint("Distance", 1, 3.0),
    Sketcher.Constraint("DistanceY", -1, 1, 2, 2, 19.874499),
    Sketcher.Constraint("DistanceX", 3, 2, -1, 1, 14.926601),
    Sketcher.Constraint("DistanceY", -1, 1, 6, 2, 14.926601),
    Sketcher.Constraint("DistanceX", 7, 2, -1, 1, 19.874499),
    Sketcher.Constraint("DistanceX", 4, 2, 1, 2, 36.00385),
])
pocket6 = body.newObject("PartDesign::Pocket", "Pocket005")
pocket6.Profile = sketch12
pocket6.Length = 2
pocket6.Reversed = True

# Sketch on XZ plane
sketch13 = body.newObject("Sketcher::SketchObject", "Sketch012")
sketch13.AttachmentSupport = (doc.getObject("XZ_Plane"), [""])
sketch13.MapMode = "FlatFace"
sketch13.AttachmentOffset = App.Placement(V(0, 0, -9.5), App.Rotation())
sketch13.addGeometry([
    Part.LineSegment(V(-7.4, -23, 0), V(-23, -7.4, 0)),  # 0
    Part.LineSegment(V(-23, -7.4, 0), V(-20.9, -5.3, 0)),  # 1
    Part.LineSegment(V(-20.9, -5.3, 0), V(-5.3, -20.9, 0)),  # 2
    Part.LineSegment(V(-5.3, -20.9, 0), V(-7.4, -23, 0)),  # 3
    Part.LineSegment(V(20.9, 5.3, 0), V(5.3, 20.9, 0)),  # 4
    Part.LineSegment(V(5.3, 20.9, 0), V(7.4, 23, 0)),  # 5
    Part.LineSegment(V(7.4, 23, 0), V(23, 7.4, 0)),  # 6
    Part.LineSegment(V(23, 7.4, 0), V(20.9, 5.3, 0)),  # 7
], False)
sketch13.addConstraint([
    Sketcher.Constraint("Coincident", 0, 2, 1, 1),
    Sketcher.Constraint("Coincident", 1, 2, 2, 1),
    Sketcher.Constraint("Coincident", 2, 2, 3, 1),
    Sketcher.Constraint("Coincident", 3, 2, 0, 1),
    Sketcher.Constraint("Coincident", 4, 2, 5, 1),
    Sketcher.Constraint("Coincident", 5, 2, 6, 1),
    Sketcher.Constraint("Coincident", 6, 2, 7, 1),
    Sketcher.Constraint("Coincident", 7, 2, 4, 1),
    Sketcher.Constraint("Symmetric", 2, 2, 4, 2, -1, 1),
    Sketcher.Constraint("Symmetric", 3, 2, 5, 2, -1, 1),
    Sketcher.Constraint("Symmetric", 0, 2, 6, 2, -1, 1),
    Sketcher.Constraint("Symmetric", 1, 2, 7, 2, -1, 1),
    Sketcher.Constraint("Perpendicular", 0, 1),
    Sketcher.Constraint("Perpendicular", 1, 2),
    Sketcher.Constraint("Perpendicular", 2, 3),
    Sketcher.Constraint("Angle", 0, Q("135 deg")),
    Sketcher.Constraint("Distance", 0, 22.0),
    Sketcher.Constraint("Distance", 1, 3.0),
    Sketcher.Constraint("DistanceY", 1, 2, -1, 1, 5.303301),
    Sketcher.Constraint("DistanceX", 2, 2, -1, 1, 5.303301),
])
pocket7 = body.newObject("PartDesign::Pocket", "Pocket006")
pocket7.Profile = sketch13
pocket7.Length = 2
pocket7.Reversed = True

# Sketch on XZ plane
sketch14 = body.newObject("Sketcher::SketchObject", "Sketch013")
sketch14.AttachmentSupport = (doc.getObject("XZ_Plane"), [""])
sketch14.MapMode = "FlatFace"
sketch14.AttachmentOffset = App.Placement(V(0, 0, -9.5), App.Rotation())
sketch14.addGeometry([
    Part.LineSegment(V(-16, -2, 0), V(2, 16, 0)),
    Part.LineSegment(V(2, 16, 0), V(16, 2, 0)),
    Part.LineSegment(V(16, 2, 0), V(-2, -16, 0)),
    Part.LineSegment(V(-2, -16, 0), V(-16, -2, 0)),
], False)
sketch14.addConstraint([
    Sketcher.Constraint("Coincident", 0, 2, 1, 1),
    Sketcher.Constraint("Coincident", 1, 2, 2, 1),
    Sketcher.Constraint("Coincident", 2, 2, 3, 1),
    Sketcher.Constraint("Coincident", 3, 2, 0, 1),
    Sketcher.Constraint("Symmetric", 0, 2, 2, 2, -1, 1),
    Sketcher.Constraint("Symmetric", 1, 2, 3, 2, -1, 1),
    Sketcher.Constraint("Perpendicular", 0, 1),
    Sketcher.Constraint("Angle", 0, Q("45 deg")),
    Sketcher.Constraint("Distance", 0, 25.0),
    Sketcher.Constraint("Distance", 1, 20.0),
])
pad7 = body.newObject("PartDesign::Pad", "Pad006")
pad7.Profile = sketch14
pad7.Length = 5

# Sketch on XZ plane
sketch15 = body.newObject("Sketcher::SketchObject", "Sketch014")
sketch15.AttachmentSupport = (doc.getObject("XZ_Plane"), [""])
sketch15.MapMode = "FlatFace"
sketch15.AttachmentOffset = App.Placement(V(0, 0, -9.5), App.Rotation())
sketch15.addGeometry([
    Part.LineSegment(V(14, 2, 0), V(-2, -14, 0)),
    Part.LineSegment(V(-2, -14, 0), V(-14, -2, 0)),
    Part.LineSegment(V(-14, -2, 0), V(2, 14, 0)),
    Part.LineSegment(V(2, 14, 0), V(14, 2, 0)),
], False)
sketch15.addConstraint([
    Sketcher.Constraint("Coincident", 0, 2, 1, 1),
    Sketcher.Constraint("Coincident", 1, 2, 2, 1),
    Sketcher.Constraint("Coincident", 2, 2, 3, 1),
    Sketcher.Constraint("Coincident", 3, 2, 0, 1),
    Sketcher.Constraint("Symmetric", 0, 2, 2, 2, -1, 1),
    Sketcher.Constraint("Symmetric", 1, 2, 3, 2, -1, 1),
    Sketcher.Constraint("Perpendicular", 0, 1),
    Sketcher.Constraint("Angle", 0, Q("-135 deg")),
    Sketcher.Constraint("Distance", 0, 22.0),
    Sketcher.Constraint("Distance", 1, 17.0),
])
pocket8 = body.newObject("PartDesign::Pocket", "Pocket007")
pocket8.Profile = sketch15
pocket8.Length = 4
pocket8.Reversed = True

# Sketch on XZ plane
sketch16 = body.newObject("Sketcher::SketchObject", "Sketch015")
sketch16.AttachmentSupport = (doc.getObject("XZ_Plane"), [""])
sketch16.MapMode = "FlatFace"
sketch16.AttachmentOffset = App.Placement(V(0, 0, -5.5), App.Rotation())
sketch16.addGeometry([
    Part.LineSegment(V(-1.7, -13.8, 0), V(-4.8, -10.7, 0)),
    Part.LineSegment(V(-4.8, -10.7, 0), V(10.7, 4.8, 0)),
    Part.LineSegment(V(10.7, 4.8, 0), V(13.8, 1.7, 0)),
    Part.LineSegment(V(13.8, 1.7, 0), V(-1.7, -13.8, 0)),
], False)
sketch16.addConstraint([
    Sketcher.Constraint("Coincident", 0, 2, 1, 1),
    Sketcher.Constraint("Coincident", 1, 2, 2, 1),
    Sketcher.Constraint("Coincident", 2, 2, 3, 1),
    Sketcher.Constraint("Coincident", 3, 2, 0, 1),
    Sketcher.Constraint("Perpendicular", 0, 1),
    Sketcher.Constraint("Perpendicular", 1, 2),
    Sketcher.Constraint("Perpendicular", 2, 3),
    Sketcher.Constraint("Angle", 0, Q("135 deg")),
    Sketcher.Constraint("Distance", 1, 22.0),
    Sketcher.Constraint("DistanceX", 0, 2, -1, 1, 4.843511),
    Sketcher.Constraint("DistanceY", 0, 2, -1, 1, 10.712838),
    Sketcher.Constraint("Distance", 0, 4.418548),
])
pocket9 = body.newObject("PartDesign::Pocket", "Pocket008")
pocket9.Profile = sketch16
pocket9.Length = 2
pocket9.Reversed = True

doc.recompute()
